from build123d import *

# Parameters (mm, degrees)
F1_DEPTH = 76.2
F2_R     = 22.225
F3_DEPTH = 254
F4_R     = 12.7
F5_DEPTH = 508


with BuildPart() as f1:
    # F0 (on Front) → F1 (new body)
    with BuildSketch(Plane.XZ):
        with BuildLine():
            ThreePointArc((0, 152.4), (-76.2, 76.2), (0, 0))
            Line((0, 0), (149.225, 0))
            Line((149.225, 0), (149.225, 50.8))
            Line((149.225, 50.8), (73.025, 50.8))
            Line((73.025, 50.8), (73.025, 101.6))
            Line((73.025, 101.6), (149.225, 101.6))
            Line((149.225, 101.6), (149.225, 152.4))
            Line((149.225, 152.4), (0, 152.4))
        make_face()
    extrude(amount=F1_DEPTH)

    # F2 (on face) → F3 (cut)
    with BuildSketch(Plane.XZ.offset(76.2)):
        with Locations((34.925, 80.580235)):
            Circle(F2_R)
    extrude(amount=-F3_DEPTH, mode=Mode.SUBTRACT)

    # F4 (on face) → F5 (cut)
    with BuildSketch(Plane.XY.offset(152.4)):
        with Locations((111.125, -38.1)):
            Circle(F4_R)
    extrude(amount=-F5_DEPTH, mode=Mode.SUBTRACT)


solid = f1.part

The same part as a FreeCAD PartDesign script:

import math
import FreeCAD as App
import Part
import Sketcher

V = App.Vector
Q = App.Units.Quantity

doc = App.newDocument("Part")
body = doc.addObject("PartDesign::Body", "Body")

# Sketch on XZ plane
sketch1 = body.newObject("Sketcher::SketchObject", "Sketch")
sketch1.AttachmentSupport = (doc.getObject("XZ_Plane"), [""])
sketch1.MapMode = "FlatFace"
sketch1.addGeometry(Part.ArcOfCircle(Part.Circle(V(0, 76.2, 0), V(0, 0, 1), 76.2), math.radians(90), math.radians(270)), False)
sketch1.addGeometry(Part.LineSegment(V(0, 0, 0), V(149.225, 0, 0)), False)
sketch1.addGeometry(Part.LineSegment(V(149.225, 0, 0), V(149.225, 50.8, 0)), False)
sketch1.addGeometry(Part.LineSegment(V(149.225, 50.8, 0), V(73.025, 50.8, 0)), False)
sketch1.addGeometry(Part.LineSegment(V(73.025, 50.8, 0), V(73.025, 101.6, 0)), False)
sketch1.addGeometry(Part.LineSegment(V(73.025, 101.6, 0), V(149.225, 101.6, 0)), False)
sketch1.addGeometry(Part.LineSegment(V(149.225, 101.6, 0), V(149.225, 152.4, 0)), False)
sketch1.addGeometry(Part.LineSegment(V(149.225, 152.4, 0), V(0, 152.4, 0)), False)
sketch1.addConstraint(Sketcher.Constraint("Tangent", 0, 2, 1, 1))
sketch1.addConstraint(Sketcher.Constraint("Coincident", 1, 2, 2, 1))
sketch1.addConstraint(Sketcher.Constraint("Coincident", 2, 2, 3, 1))
sketch1.addConstraint(Sketcher.Constraint("Coincident", 3, 2, 4, 1))
sketch1.addConstraint(Sketcher.Constraint("Coincident", 4, 2, 5, 1))
sketch1.addConstraint(Sketcher.Constraint("Coincident", 5, 2, 6, 1))
sketch1.addConstraint(Sketcher.Constraint("Coincident", 6, 2, 7, 1))
sketch1.addConstraint(Sketcher.Constraint("Tangent", 7, 2, 0, 1))
sketch1.addConstraint(Sketcher.Constraint("Horizontal", 1))
sketch1.addConstraint(Sketcher.Constraint("Vertical", 2))
sketch1.addConstraint(Sketcher.Constraint("Horizontal", 3))
sketch1.addConstraint(Sketcher.Constraint("Vertical", 4))
sketch1.addConstraint(Sketcher.Constraint("Horizontal", 5))
sketch1.addConstraint(Sketcher.Constraint("Vertical", 6))
sketch1.addConstraint(Sketcher.Constraint("Horizontal", 7))
sketch1.addConstraint(Sketcher.Constraint("Coincident", 0, 2, -1, 1))
sketch1.addConstraint(Sketcher.Constraint("Vertical", 2, 2, 5, 2))
sketch1.addConstraint(Sketcher.Constraint("Equal", 2, 4))
sketch1.addConstraint(Sketcher.Constraint("Equal", 4, 6))
sketch1.addConstraint(Sketcher.Constraint("Radius", 0, Q("3 in")))
sketch1.addConstraint(Sketcher.Constraint("DistanceX", 3, 2, 3, 1, Q("3 in")))
sketch1.addConstraint(Sketcher.Constraint("DistanceX", 1, 1, 1, 2, Q("5.875 in")))
pad1 = body.newObject("PartDesign::Pad", "Pad")
pad1.Profile = sketch1
pad1.Length = Q("3 in")

# Sketch on XZ plane
sketch2 = body.newObject("Sketcher::SketchObject", "Sketch001")
sketch2.AttachmentSupport = (doc.getObject("XZ_Plane"), [""])
sketch2.MapMode = "FlatFace"
sketch2.AttachmentOffset = App.Placement(V(0, 0, 3 * 25.4), App.Rotation())
sketch2.addGeometry(Part.Circle(V(34.925, 80.580235, 0), V(0, 0, 1), 22.225), False)
sketch2.addConstraint(Sketcher.Constraint("Diameter", 0, Q("1.75 in")))
sketch2.addConstraint(Sketcher.Constraint("DistanceX", -1, 1, 0, 3, Q("1.375 in")))
sketch2.addConstraint(Sketcher.Constraint("DistanceY", -1, 1, 0, 3, 80.580235))
pocket1 = body.newObject("PartDesign::Pocket", "Pocket")
pocket1.Profile = sketch2
pocket1.Length = Q("10 in")

# Sketch on XY plane
sketch3 = body.newObject("Sketcher::SketchObject", "Sketch002")
sketch3.AttachmentSupport = (doc.getObject("XY_Plane"), [""])
sketch3.MapMode = "FlatFace"
sketch3.AttachmentOffset = App.Placement(V(0, 0, 6 * 25.4), App.Rotation())
sketch3.addGeometry(Part.Circle(V(111.125, -38.1, 0), V(0, 0, 1), 12.7), False)
sketch3.addConstraint(Sketcher.Constraint("Diameter", 0, Q("1 in")))
sketch3.addConstraint(Sketcher.Constraint("DistanceY", 0, 3, -1, 1, Q("1.5 in")))
sketch3.addConstraint(Sketcher.Constraint("DistanceX", -1, 1, 0, 3, Q("4.375 in")))
pocket2 = body.newObject("PartDesign::Pocket", "Pocket001")
pocket2.Profile = sketch3
pocket2.Length = Q("20 in")

doc.recompute()
